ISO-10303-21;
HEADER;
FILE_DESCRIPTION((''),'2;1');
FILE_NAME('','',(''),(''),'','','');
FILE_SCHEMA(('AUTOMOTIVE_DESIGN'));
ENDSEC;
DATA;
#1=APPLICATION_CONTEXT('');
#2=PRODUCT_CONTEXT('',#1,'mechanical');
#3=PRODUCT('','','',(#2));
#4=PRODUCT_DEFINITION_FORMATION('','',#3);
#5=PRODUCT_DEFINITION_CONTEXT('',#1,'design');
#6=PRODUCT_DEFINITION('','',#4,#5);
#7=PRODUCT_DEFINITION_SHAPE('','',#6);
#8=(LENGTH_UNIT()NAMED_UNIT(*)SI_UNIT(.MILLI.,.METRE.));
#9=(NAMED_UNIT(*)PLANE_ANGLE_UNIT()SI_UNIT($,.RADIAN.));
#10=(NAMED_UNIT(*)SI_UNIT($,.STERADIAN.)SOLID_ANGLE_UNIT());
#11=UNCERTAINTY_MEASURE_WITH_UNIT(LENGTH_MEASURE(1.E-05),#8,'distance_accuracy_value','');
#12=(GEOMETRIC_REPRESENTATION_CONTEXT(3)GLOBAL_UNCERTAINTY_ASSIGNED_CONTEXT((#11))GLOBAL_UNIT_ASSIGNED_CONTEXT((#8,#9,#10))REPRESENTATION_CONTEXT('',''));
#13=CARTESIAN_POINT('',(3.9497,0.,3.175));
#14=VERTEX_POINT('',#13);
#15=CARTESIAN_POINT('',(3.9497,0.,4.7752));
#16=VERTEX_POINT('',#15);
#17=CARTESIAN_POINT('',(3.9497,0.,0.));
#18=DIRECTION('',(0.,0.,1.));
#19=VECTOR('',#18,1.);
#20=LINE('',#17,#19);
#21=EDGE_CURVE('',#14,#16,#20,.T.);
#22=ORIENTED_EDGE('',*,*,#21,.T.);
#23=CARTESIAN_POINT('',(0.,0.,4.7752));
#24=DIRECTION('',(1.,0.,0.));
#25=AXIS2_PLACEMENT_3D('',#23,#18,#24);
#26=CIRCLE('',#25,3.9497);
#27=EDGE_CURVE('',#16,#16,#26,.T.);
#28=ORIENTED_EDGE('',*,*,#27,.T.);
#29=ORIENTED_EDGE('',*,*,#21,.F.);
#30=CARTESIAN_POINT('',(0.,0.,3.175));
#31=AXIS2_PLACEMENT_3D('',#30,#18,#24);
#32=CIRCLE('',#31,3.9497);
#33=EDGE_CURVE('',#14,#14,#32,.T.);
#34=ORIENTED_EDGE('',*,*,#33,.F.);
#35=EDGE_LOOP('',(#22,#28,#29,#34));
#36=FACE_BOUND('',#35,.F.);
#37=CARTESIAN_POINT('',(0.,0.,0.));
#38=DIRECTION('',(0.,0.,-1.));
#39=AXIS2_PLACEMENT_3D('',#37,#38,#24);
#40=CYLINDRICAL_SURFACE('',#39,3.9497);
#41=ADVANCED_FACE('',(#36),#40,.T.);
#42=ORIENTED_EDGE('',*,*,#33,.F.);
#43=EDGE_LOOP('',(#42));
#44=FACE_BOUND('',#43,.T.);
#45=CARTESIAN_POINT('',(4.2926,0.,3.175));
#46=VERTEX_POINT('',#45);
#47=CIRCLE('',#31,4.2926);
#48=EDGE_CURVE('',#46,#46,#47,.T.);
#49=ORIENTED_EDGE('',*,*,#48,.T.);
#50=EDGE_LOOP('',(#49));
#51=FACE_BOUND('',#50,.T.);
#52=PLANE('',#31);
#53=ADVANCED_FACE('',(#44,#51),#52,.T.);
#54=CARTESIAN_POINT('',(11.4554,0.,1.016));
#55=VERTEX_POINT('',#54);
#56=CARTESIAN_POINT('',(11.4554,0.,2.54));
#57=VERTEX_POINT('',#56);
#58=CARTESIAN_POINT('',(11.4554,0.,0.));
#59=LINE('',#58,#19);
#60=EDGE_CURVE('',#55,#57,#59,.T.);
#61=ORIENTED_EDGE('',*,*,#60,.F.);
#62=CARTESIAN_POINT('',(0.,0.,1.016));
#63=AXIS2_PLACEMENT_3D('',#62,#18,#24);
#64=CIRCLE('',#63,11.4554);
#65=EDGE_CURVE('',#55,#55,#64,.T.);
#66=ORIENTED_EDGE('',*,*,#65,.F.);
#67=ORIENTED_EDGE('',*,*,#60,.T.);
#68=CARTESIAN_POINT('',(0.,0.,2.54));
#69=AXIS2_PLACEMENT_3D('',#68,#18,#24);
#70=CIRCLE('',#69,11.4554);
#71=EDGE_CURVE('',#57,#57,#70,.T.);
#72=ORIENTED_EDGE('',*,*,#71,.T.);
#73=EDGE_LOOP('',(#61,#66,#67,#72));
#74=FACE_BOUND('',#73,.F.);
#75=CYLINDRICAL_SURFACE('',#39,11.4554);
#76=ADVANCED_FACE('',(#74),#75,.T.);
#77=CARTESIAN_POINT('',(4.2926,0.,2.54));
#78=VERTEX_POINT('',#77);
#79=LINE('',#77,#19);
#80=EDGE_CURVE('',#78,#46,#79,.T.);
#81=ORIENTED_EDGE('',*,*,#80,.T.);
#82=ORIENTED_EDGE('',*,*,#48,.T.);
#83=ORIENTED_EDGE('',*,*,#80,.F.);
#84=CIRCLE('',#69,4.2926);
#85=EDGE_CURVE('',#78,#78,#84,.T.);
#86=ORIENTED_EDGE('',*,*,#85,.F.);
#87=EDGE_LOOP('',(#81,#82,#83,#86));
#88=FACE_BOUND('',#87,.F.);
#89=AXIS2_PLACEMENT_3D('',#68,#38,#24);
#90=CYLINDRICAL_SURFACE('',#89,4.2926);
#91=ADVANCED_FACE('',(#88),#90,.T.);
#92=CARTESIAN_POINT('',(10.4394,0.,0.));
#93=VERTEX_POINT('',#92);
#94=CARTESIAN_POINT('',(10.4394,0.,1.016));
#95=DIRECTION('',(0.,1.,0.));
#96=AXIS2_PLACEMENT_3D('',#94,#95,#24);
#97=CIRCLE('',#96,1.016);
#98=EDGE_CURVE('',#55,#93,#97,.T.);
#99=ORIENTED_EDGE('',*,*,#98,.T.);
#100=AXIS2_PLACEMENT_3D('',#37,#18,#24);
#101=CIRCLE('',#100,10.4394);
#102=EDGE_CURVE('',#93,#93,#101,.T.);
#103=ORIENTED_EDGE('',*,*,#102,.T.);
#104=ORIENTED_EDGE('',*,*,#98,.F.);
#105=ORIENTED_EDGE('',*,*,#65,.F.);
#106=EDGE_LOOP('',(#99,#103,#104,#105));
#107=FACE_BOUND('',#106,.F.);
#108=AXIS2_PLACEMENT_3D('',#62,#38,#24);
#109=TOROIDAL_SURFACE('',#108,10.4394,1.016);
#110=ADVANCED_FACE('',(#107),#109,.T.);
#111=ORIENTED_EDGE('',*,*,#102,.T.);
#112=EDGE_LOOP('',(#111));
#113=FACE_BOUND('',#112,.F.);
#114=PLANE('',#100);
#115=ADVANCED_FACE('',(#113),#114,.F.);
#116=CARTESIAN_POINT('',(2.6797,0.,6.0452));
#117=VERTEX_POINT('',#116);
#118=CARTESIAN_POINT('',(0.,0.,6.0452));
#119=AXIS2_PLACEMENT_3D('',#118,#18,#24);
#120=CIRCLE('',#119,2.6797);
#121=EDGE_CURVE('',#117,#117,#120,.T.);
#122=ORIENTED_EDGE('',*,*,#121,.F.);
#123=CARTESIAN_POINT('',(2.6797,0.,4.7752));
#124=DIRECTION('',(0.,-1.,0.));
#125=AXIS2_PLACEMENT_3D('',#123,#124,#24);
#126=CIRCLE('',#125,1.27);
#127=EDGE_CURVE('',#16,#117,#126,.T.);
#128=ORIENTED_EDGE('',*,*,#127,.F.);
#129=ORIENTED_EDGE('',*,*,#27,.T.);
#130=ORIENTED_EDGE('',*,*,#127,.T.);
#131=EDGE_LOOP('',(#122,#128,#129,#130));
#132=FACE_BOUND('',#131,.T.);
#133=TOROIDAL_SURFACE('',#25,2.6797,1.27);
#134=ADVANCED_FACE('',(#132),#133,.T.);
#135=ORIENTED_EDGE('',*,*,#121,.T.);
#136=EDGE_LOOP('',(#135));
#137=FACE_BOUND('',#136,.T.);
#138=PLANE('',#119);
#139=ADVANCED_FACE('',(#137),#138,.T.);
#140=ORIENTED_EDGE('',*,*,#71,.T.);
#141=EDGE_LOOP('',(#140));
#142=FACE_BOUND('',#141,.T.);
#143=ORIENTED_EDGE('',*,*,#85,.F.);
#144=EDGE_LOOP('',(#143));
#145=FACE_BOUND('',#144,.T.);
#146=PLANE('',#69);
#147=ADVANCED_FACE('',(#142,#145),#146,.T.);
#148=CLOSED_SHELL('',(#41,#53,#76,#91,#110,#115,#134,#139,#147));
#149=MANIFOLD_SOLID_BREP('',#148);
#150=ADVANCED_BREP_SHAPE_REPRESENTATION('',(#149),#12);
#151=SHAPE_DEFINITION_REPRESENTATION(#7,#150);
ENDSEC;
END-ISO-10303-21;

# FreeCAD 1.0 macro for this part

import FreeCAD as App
import Part
import Sketcher
Q = App.Units.Quantity


def edges_at(feature, points):
    """Names of the edges that pass closest to the given points."""
    edges = feature.Shape.Edges
    near = lambda p: min(range(len(edges)), key=lambda i: edges[i].distToShape(Part.Vertex(*p))[0])
    return sorted({f"Edge{near(p) + 1}" for p in points})

doc = App.newDocument("Part")
body = doc.addObject("PartDesign::Body", "Body")

# Sketch on XY plane
sketch1 = body.newObject("Sketcher::SketchObject", "Sketch")
sketch1.AttachmentSupport = (doc.getObject("XY_Plane"), [""])
sketch1.MapMode = "FlatFace"
sketch1.addGeometry(Part.Circle(App.Vector(0, 0, 0), App.Vector(0, 0, 1), 3.9), False)
sketch1.addConstraint([
    Sketcher.Constraint("Coincident", 0, 3, -1, 1),
    Sketcher.Constraint("Diameter", 0, Q("0.311 in")),
])
pad1 = body.newObject("PartDesign::Pad", "Pad")
pad1.Profile = sketch1
pad1.Length = Q("0.238 in")

# Sketch on XY plane
sketch2 = body.newObject("Sketcher::SketchObject", "Sketch001")
sketch2.AttachmentSupport = (doc.getObject("XY_Plane"), [""])
sketch2.MapMode = "FlatFace"
sketch2.addGeometry([
    Part.Circle(App.Vector(0, 0, 0), App.Vector(0, 0, 1), 11.5),
    Part.Circle(App.Vector(0, 0, 0), App.Vector(0, 0, 1), 3.9),
], False)
sketch2.addConstraint([
    Sketcher.Constraint("Coincident", 0, 3, -1, 1),
    Sketcher.Constraint("Coincident", 1, 3, -1, 1),
    Sketcher.Constraint("Diameter", 0, Q("0.902 in")),
    Sketcher.Constraint("Diameter", 1, Q("0.311 in")),
])
pad2 = body.newObject("PartDesign::Pad", "Pad001")
pad2.Profile = sketch2
pad2.Length = Q("0.1 in")
doc.recompute()

fillet = body.newObject("PartDesign::Fillet", "Fillet")
fillet.Base = (pad2, edges_at(pad2, [(-11.455, 0, 0)]))
fillet.Radius = Q("0.04 in")
doc.recompute()

fillet2 = body.newObject("PartDesign::Fillet", "Fillet001")
fillet2.Base = (fillet, edges_at(fillet, [(-3.95, 0, 6.045)]))
fillet2.Radius = Q("0.05 in")

# Sketch on XY plane
sketch3 = body.newObject("Sketcher::SketchObject", "Sketch002")
sketch3.AttachmentSupport = (doc.getObject("XY_Plane"), [""])
sketch3.MapMode = "FlatFace"
sketch3.AttachmentOffset = App.Placement(App.Vector(0, 0, 0.1 * 25.4), App.Rotation())
sketch3.addGeometry([
    Part.Circle(App.Vector(0, 0, 0), App.Vector(0, 0, 1), 4.3),
    Part.Circle(App.Vector(0, 0, 0), App.Vector(0, 0, 1), 3.9),
], False)
sketch3.addConstraint([
    Sketcher.Constraint("Coincident", 0, 3, -1, 1),
    Sketcher.Constraint("Coincident", 1, 3, -1, 1),
    Sketcher.Constraint("Diameter", 0, Q("0.338 in")),
    Sketcher.Constraint("Diameter", 1, Q("0.311 in")),
])
pad3 = body.newObject("PartDesign::Pad", "Pad002")
pad3.Profile = sketch3
pad3.Length = Q("0.025 in")

doc.recompute()
